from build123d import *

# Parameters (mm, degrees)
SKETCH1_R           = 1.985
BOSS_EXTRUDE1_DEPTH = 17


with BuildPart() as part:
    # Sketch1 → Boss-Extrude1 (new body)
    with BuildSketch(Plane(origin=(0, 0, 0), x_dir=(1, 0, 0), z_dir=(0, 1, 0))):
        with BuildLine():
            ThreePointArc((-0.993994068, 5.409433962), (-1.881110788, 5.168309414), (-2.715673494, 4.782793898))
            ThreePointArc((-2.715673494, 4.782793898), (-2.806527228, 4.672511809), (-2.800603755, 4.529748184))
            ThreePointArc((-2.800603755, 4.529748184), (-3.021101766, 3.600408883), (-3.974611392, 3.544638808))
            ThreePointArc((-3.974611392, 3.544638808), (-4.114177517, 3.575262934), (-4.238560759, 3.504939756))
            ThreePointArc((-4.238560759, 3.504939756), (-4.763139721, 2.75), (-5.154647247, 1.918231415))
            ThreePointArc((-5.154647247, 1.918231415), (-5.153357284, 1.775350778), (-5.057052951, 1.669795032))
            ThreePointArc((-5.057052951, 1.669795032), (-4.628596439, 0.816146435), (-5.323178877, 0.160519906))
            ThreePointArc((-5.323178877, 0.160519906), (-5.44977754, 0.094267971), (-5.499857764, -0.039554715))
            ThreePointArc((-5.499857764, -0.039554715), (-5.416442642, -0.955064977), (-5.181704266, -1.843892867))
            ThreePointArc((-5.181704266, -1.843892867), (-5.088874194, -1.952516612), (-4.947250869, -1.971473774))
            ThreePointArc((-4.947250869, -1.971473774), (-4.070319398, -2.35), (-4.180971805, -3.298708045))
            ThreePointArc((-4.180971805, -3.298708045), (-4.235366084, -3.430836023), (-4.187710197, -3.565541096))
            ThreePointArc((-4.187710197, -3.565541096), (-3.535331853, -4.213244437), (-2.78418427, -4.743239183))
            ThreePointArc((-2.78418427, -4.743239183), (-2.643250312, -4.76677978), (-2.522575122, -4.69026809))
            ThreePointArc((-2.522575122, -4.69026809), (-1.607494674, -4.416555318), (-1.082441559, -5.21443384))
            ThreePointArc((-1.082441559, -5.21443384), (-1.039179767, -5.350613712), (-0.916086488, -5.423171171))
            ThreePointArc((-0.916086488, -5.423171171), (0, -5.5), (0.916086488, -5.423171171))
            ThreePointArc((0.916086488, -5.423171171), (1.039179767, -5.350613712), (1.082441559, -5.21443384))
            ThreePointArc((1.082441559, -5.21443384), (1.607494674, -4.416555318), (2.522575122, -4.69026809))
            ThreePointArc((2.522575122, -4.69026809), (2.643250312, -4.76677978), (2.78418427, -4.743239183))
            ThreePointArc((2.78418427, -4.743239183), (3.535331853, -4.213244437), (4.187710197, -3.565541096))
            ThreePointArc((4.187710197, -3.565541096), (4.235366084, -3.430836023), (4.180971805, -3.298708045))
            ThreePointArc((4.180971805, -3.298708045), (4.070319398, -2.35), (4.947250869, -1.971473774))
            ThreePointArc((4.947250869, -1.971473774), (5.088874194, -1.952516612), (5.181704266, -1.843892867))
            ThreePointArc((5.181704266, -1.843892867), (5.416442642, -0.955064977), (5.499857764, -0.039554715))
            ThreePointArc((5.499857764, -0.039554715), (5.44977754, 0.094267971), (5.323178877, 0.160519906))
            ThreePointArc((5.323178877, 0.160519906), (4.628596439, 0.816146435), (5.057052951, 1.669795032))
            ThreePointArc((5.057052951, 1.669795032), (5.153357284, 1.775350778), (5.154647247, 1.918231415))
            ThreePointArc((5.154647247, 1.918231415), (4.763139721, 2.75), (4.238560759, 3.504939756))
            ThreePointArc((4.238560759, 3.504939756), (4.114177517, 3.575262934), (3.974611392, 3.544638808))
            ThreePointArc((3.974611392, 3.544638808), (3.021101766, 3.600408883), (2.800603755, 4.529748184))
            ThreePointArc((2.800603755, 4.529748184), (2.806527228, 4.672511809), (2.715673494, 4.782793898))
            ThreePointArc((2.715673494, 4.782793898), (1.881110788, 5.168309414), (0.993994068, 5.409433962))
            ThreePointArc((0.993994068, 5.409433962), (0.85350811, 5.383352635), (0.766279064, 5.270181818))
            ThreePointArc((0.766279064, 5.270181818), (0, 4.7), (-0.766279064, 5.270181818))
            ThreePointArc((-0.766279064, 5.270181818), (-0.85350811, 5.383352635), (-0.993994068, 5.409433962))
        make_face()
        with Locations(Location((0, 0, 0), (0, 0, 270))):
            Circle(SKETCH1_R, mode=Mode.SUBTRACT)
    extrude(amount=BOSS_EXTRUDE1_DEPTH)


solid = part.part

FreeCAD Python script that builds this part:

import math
import FreeCAD as App
import Part
import Sketcher
Q = App.Units.Quantity

doc = App.newDocument("Part")
params = doc.addObject("Spreadsheet::Sheet", "Params")
for row, (alias, value) in enumerate([
    ("sketch1_radius", "5.5 mm"),
    ("sketch1_radius2", "0.2 mm"),
    ("sketch1_radius3", "0.8 mm"),
    ("sketch1_diameter", "3.97 mm"),
    ("pad1_length", "17 mm"),
], start=1):
    params.set(f"A{row}", alias)
    params.set(f"B{row}", "=" + value)
    params.setAlias(f"B{row}", alias)

body = doc.addObject("PartDesign::Body", "Body")

# Sketch on XZ plane
sketch1 = doc.addObject("Sketcher::SketchObject", "Sketch")
body.addObject(sketch1)
sketch1.AttachmentSupport = (doc.XZ_Plane, [""])
sketch1.MapMode = "FlatFace"
sketch1.addGeometry([
    Part.ArcOfCircle(Part.Circle(App.Vector(0, 0, 0), App.Vector(0, 0, 1), 5.5), math.radians(-119.59), math.radians(-100.41)),  # 0
    Part.ArcOfCircle(Part.Circle(App.Vector(-2.62, -4.61, 0), App.Vector(0, 0, 1), 0.2), math.radians(157), math.radians(240)),  # 1
    Part.ArcOfCircle(Part.Circle(App.Vector(-3.54, -4.21, 0), App.Vector(0, 0, 1), 0.8), math.radians(-23), math.radians(123)),  # 2
    Part.ArcOfCircle(Part.Circle(App.Vector(-4.08, -3.38, 0), App.Vector(0, 0, 1), 0.2), math.radians(-140), math.radians(-57)),  # 3
    Part.ArcOfCircle(Part.Circle(App.Vector(0, 0, 0), App.Vector(0, 0, 1), 5.5), math.radians(-159.59), math.radians(-140.41)),  # 4
    Part.ArcOfCircle(Part.Circle(App.Vector(-4.97, -1.85, 0), App.Vector(0, 0, 1), 0.2), math.radians(117), math.radians(200)),  # 5
    Part.ArcOfCircle(Part.Circle(App.Vector(-5.42, -0.96, 0), App.Vector(0, 0, 1), 0.8), math.radians(-63), math.radians(83)),  # 6
    Part.ArcOfCircle(Part.Circle(App.Vector(-5.3, 0.04, 0), App.Vector(0, 0, 1), 0.2), math.radians(180), math.radians(263)),  # 7
    Part.ArcOfCircle(Part.Circle(App.Vector(0, 0, 0), App.Vector(0, 0, 1), 5.5), math.radians(160.41), math.radians(179.59)),  # 8
    Part.ArcOfCircle(Part.Circle(App.Vector(-4.99, 1.78, 0), App.Vector(0, 0, 1), 0.2), math.radians(77), math.radians(160)),  # 9
    Part.ArcOfCircle(Part.Circle(App.Vector(-4.76, 2.75, 0), App.Vector(0, 0, 1), 0.8), math.radians(-103), math.radians(43)),  # 10
    Part.ArcOfCircle(Part.Circle(App.Vector(-4.04, 3.44, 0), App.Vector(0, 0, 1), 0.2), math.radians(140), math.radians(223)),  # 11
    Part.ArcOfCircle(Part.Circle(App.Vector(0, 0, 0), App.Vector(0, 0, 1), 5.5), math.radians(120.41), math.radians(139.59)),  # 12
    Part.ArcOfCircle(Part.Circle(App.Vector(-2.68, 4.57, 0), App.Vector(0, 0, 1), 0.2), math.radians(37), math.radians(120)),  # 13
    Part.ArcOfCircle(Part.Circle(App.Vector(-1.88, 5.17, 0), App.Vector(0, 0, 1), 0.8), math.radians(-143), math.radians(3)),  # 14
    Part.ArcOfCircle(Part.Circle(App.Vector(-0.88, 5.23, 0), App.Vector(0, 0, 1), 0.2), math.radians(100), math.radians(183)),  # 15
    Part.ArcOfCircle(Part.Circle(App.Vector(0, 0, 0), App.Vector(0, 0, 1), 5.5), math.radians(80.41), math.radians(99.59)),  # 16
    Part.ArcOfCircle(Part.Circle(App.Vector(0.88, 5.23, 0), App.Vector(0, 0, 1), 0.2), math.radians(-3), math.radians(80)),  # 17
    Part.ArcOfCircle(Part.Circle(App.Vector(1.88, 5.17, 0), App.Vector(0, 0, 1), 0.8), math.radians(177), math.radians(323)),  # 18
    Part.ArcOfCircle(Part.Circle(App.Vector(2.68, 4.57, 0), App.Vector(0, 0, 1), 0.2), math.radians(60), math.radians(143)),  # 19
    Part.ArcOfCircle(Part.Circle(App.Vector(0, 0, 0), App.Vector(0, 0, 1), 5.5), math.radians(40.41), math.radians(59.59)),  # 20
    Part.ArcOfCircle(Part.Circle(App.Vector(4.04, 3.44, 0), App.Vector(0, 0, 1), 0.2), math.radians(-43), math.radians(40)),  # 21
    Part.ArcOfCircle(Part.Circle(App.Vector(4.76, 2.75, 0), App.Vector(0, 0, 1), 0.8), math.radians(137), math.radians(283)),  # 22
    Part.ArcOfCircle(Part.Circle(App.Vector(4.99, 1.78, 0), App.Vector(0, 0, 1), 0.2), math.radians(20), math.radians(103)),  # 23
    Part.ArcOfCircle(Part.Circle(App.Vector(0, 0, 0), App.Vector(0, 0, 1), 5.5), math.radians(0.41), math.radians(19.59)),  # 24
    Part.ArcOfCircle(Part.Circle(App.Vector(5.3, 0.04, 0), App.Vector(0, 0, 1), 0.2), math.radians(-83), math.radians(0)),  # 25
    Part.ArcOfCircle(Part.Circle(App.Vector(5.42, -0.96, 0), App.Vector(0, 0, 1), 0.8), math.radians(97), math.radians(243)),  # 26
    Part.ArcOfCircle(Part.Circle(App.Vector(4.97, -1.85, 0), App.Vector(0, 0, 1), 0.2), math.radians(-20), math.radians(63)),  # 27
    Part.ArcOfCircle(Part.Circle(App.Vector(0, 0, 0), App.Vector(0, 0, 1), 5.5), math.radians(-39.59), math.radians(-20.41)),  # 28
    Part.ArcOfCircle(Part.Circle(App.Vector(4.08, -3.38, 0), App.Vector(0, 0, 1), 0.2), math.radians(-123), math.radians(-40)),  # 29
    Part.ArcOfCircle(Part.Circle(App.Vector(3.54, -4.21, 0), App.Vector(0, 0, 1), 0.8), math.radians(57), math.radians(203)),  # 30
    Part.ArcOfCircle(Part.Circle(App.Vector(2.62, -4.61, 0), App.Vector(0, 0, 1), 0.2), math.radians(-60), math.radians(23)),  # 31
    Part.ArcOfCircle(Part.Circle(App.Vector(0, 0, 0), App.Vector(0, 0, 1), 5.5), math.radians(-79.59), math.radians(-60.41)),  # 32
    Part.ArcOfCircle(Part.Circle(App.Vector(0.96, -5.21, 0), App.Vector(0, 0, 1), 0.2), math.radians(-163), math.radians(-80)),  # 33
    Part.ArcOfCircle(Part.Circle(App.Vector(0, -5.5, 0), App.Vector(0, 0, 1), 0.8), math.radians(17), math.radians(163)),  # 34
    Part.ArcOfCircle(Part.Circle(App.Vector(-0.96, -5.21, 0), App.Vector(0, 0, 1), 0.2), math.radians(-100), math.radians(-17)),  # 35
    Part.Circle(App.Vector(0, 0, 0), App.Vector(0, 0, 1), 1.99),  # 36
], False)
sketch1.addConstraint([
    Sketcher.Constraint("Tangent", 0, 1, 1, 2),
    Sketcher.Constraint("Tangent", 1, 1, 2, 1),
    Sketcher.Constraint("Tangent", 2, 2, 3, 2),
    Sketcher.Constraint("Tangent", 3, 1, 4, 2),
    Sketcher.Constraint("Tangent", 4, 1, 5, 2),
    Sketcher.Constraint("Tangent", 5, 1, 6, 1),
    Sketcher.Constraint("Tangent", 6, 2, 7, 2),
    Sketcher.Constraint("Tangent", 7, 1, 8, 2),
    Sketcher.Constraint("Tangent", 8, 1, 9, 2),
    Sketcher.Constraint("Tangent", 9, 1, 10, 1),
    Sketcher.Constraint("Tangent", 10, 2, 11, 2),
    Sketcher.Constraint("Tangent", 11, 1, 12, 2),
    Sketcher.Constraint("Tangent", 12, 1, 13, 2),
    Sketcher.Constraint("Tangent", 13, 1, 14, 1),
    Sketcher.Constraint("Tangent", 14, 2, 15, 2),
    Sketcher.Constraint("Tangent", 15, 1, 16, 2),
    Sketcher.Constraint("Tangent", 16, 1, 17, 2),
    Sketcher.Constraint("Tangent", 17, 1, 18, 1),
    Sketcher.Constraint("Tangent", 18, 2, 19, 2),
    Sketcher.Constraint("Tangent", 19, 1, 20, 2),
    Sketcher.Constraint("Tangent", 20, 1, 21, 2),
    Sketcher.Constraint("Tangent", 21, 1, 22, 1),
    Sketcher.Constraint("Tangent", 22, 2, 23, 2),
    Sketcher.Constraint("Tangent", 23, 1, 24, 2),
    Sketcher.Constraint("Tangent", 24, 1, 25, 2),
    Sketcher.Constraint("Tangent", 25, 1, 26, 1),
    Sketcher.Constraint("Tangent", 26, 2, 27, 2),
    Sketcher.Constraint("Tangent", 27, 1, 28, 2),
    Sketcher.Constraint("Tangent", 28, 1, 29, 2),
    Sketcher.Constraint("Tangent", 29, 1, 30, 1),
    Sketcher.Constraint("Tangent", 30, 2, 31, 2),
    Sketcher.Constraint("Tangent", 31, 1, 32, 2),
    Sketcher.Constraint("Tangent", 32, 1, 33, 2),
    Sketcher.Constraint("Tangent", 33, 1, 34, 1),
    Sketcher.Constraint("Tangent", 34, 2, 35, 2),
    Sketcher.Constraint("Tangent", 35, 1, 0, 2),
    Sketcher.Constraint("Coincident", 0, 3, -1, 1),
    Sketcher.Constraint("Coincident", 4, 3, -1, 1),
    Sketcher.Constraint("Coincident", 8, 3, -1, 1),
    Sketcher.Constraint("Coincident", 12, 3, -1, 1),
    Sketcher.Constraint("Coincident", 16, 3, -1, 1),
    Sketcher.Constraint("Coincident", 20, 3, -1, 1),
    Sketcher.Constraint("Coincident", 24, 3, -1, 1),
    Sketcher.Constraint("Coincident", 28, 3, -1, 1),
    Sketcher.Constraint("Coincident", 32, 3, -1, 1),
    Sketcher.Constraint("Coincident", 36, 3, -1, 1),
    Sketcher.Constraint("Equal", 1, 3),
    Sketcher.Constraint("Equal", 0, 4),
    Sketcher.Constraint("Equal", 3, 5),
    Sketcher.Constraint("Equal", 2, 6),
    Sketcher.Constraint("Equal", 5, 7),
    Sketcher.Constraint("Equal", 4, 8),
    Sketcher.Constraint("Equal", 7, 9),
    Sketcher.Constraint("Equal", 6, 10),
    Sketcher.Constraint("Equal", 9, 11),
    Sketcher.Constraint("Equal", 8, 12),
    Sketcher.Constraint("Equal", 11, 13),
    Sketcher.Constraint("Equal", 10, 14),
    Sketcher.Constraint("Equal", 13, 15),
    Sketcher.Constraint("Equal", 12, 16),
    Sketcher.Constraint("Equal", 15, 17),
    Sketcher.Constraint("Equal", 14, 18),
    Sketcher.Constraint("Equal", 17, 19),
    Sketcher.Constraint("Equal", 16, 20),
    Sketcher.Constraint("Equal", 19, 21),
    Sketcher.Constraint("Equal", 18, 22),
    Sketcher.Constraint("Equal", 21, 23),
    Sketcher.Constraint("Equal", 20, 24),
    Sketcher.Constraint("Equal", 23, 25),
    Sketcher.Constraint("Equal", 22, 26),
    Sketcher.Constraint("Equal", 25, 27),
    Sketcher.Constraint("Equal", 24, 28),
    Sketcher.Constraint("Equal", 27, 29),
    Sketcher.Constraint("Equal", 26, 30),
    Sketcher.Constraint("Equal", 29, 31),
    Sketcher.Constraint("Equal", 28, 32),
    Sketcher.Constraint("Equal", 31, 33),
    Sketcher.Constraint("Equal", 30, 34),
    Sketcher.Constraint("Equal", 33, 35),
    Sketcher.Constraint("Symmetric", 14, 3, 18, 3, -2),
    Sketcher.Constraint("Symmetric", 10, 3, 22, 3, -2),
    Sketcher.Constraint("Symmetric", 6, 3, 26, 3, -2),
    Sketcher.Constraint("Symmetric", 2, 3, 30, 3, -2),
    Sketcher.Constraint("PointOnObject", 34, 3, -2),
    Sketcher.Constraint("Radius", 0, Q("5.5 mm")),
    Sketcher.Constraint("Radius", 1, Q("0.2 mm")),
    Sketcher.Constraint("Radius", 2, Q("0.8 mm")),
    Sketcher.Constraint("Diameter", 36, Q("3.97 mm")),
    Sketcher.Constraint("DistanceY", 34, 3, -1, 1, Q("5.5 mm")),
    Sketcher.Constraint("DistanceY", -1, 1, 10, 3, Q("2.75 mm")),
    Sketcher.Constraint("DistanceX", 1, 3, -1, 1, Q("2.616922 mm")),
    Sketcher.Constraint("DistanceX", 2, 3, -1, 1, Q("3.535332 mm")),
    Sketcher.Constraint("DistanceX", 9, 3, -1, 1, Q("4.993279 mm")),
    Sketcher.Constraint("DistanceX", 13, 3, -1, 1, Q("2.682941 mm")),
    Sketcher.Constraint("DistanceX", 14, 3, -1, 1, Q("1.881111 mm")),
    Sketcher.Constraint("DistanceY", 4, 1, -1, 1, Q("1.918231 mm")),
    Sketcher.Constraint("DistanceX", 6, 2, -1, 1, Q("5.323179 mm")),
])
sketch1.setExpression("Constraints[84]", "Params.sketch1_radius")
sketch1.setExpression("Constraints[85]", "Params.sketch1_radius2")
sketch1.setExpression("Constraints[86]", "Params.sketch1_radius3")
sketch1.setExpression("Constraints[87]", "Params.sketch1_diameter")
pad1 = doc.addObject("PartDesign::Pad", "Pad")
body.addObject(pad1)
pad1.Profile = sketch1
pad1.setExpression("Length", "Params.pad1_length")
pad1.Reversed = True

doc.recompute()
